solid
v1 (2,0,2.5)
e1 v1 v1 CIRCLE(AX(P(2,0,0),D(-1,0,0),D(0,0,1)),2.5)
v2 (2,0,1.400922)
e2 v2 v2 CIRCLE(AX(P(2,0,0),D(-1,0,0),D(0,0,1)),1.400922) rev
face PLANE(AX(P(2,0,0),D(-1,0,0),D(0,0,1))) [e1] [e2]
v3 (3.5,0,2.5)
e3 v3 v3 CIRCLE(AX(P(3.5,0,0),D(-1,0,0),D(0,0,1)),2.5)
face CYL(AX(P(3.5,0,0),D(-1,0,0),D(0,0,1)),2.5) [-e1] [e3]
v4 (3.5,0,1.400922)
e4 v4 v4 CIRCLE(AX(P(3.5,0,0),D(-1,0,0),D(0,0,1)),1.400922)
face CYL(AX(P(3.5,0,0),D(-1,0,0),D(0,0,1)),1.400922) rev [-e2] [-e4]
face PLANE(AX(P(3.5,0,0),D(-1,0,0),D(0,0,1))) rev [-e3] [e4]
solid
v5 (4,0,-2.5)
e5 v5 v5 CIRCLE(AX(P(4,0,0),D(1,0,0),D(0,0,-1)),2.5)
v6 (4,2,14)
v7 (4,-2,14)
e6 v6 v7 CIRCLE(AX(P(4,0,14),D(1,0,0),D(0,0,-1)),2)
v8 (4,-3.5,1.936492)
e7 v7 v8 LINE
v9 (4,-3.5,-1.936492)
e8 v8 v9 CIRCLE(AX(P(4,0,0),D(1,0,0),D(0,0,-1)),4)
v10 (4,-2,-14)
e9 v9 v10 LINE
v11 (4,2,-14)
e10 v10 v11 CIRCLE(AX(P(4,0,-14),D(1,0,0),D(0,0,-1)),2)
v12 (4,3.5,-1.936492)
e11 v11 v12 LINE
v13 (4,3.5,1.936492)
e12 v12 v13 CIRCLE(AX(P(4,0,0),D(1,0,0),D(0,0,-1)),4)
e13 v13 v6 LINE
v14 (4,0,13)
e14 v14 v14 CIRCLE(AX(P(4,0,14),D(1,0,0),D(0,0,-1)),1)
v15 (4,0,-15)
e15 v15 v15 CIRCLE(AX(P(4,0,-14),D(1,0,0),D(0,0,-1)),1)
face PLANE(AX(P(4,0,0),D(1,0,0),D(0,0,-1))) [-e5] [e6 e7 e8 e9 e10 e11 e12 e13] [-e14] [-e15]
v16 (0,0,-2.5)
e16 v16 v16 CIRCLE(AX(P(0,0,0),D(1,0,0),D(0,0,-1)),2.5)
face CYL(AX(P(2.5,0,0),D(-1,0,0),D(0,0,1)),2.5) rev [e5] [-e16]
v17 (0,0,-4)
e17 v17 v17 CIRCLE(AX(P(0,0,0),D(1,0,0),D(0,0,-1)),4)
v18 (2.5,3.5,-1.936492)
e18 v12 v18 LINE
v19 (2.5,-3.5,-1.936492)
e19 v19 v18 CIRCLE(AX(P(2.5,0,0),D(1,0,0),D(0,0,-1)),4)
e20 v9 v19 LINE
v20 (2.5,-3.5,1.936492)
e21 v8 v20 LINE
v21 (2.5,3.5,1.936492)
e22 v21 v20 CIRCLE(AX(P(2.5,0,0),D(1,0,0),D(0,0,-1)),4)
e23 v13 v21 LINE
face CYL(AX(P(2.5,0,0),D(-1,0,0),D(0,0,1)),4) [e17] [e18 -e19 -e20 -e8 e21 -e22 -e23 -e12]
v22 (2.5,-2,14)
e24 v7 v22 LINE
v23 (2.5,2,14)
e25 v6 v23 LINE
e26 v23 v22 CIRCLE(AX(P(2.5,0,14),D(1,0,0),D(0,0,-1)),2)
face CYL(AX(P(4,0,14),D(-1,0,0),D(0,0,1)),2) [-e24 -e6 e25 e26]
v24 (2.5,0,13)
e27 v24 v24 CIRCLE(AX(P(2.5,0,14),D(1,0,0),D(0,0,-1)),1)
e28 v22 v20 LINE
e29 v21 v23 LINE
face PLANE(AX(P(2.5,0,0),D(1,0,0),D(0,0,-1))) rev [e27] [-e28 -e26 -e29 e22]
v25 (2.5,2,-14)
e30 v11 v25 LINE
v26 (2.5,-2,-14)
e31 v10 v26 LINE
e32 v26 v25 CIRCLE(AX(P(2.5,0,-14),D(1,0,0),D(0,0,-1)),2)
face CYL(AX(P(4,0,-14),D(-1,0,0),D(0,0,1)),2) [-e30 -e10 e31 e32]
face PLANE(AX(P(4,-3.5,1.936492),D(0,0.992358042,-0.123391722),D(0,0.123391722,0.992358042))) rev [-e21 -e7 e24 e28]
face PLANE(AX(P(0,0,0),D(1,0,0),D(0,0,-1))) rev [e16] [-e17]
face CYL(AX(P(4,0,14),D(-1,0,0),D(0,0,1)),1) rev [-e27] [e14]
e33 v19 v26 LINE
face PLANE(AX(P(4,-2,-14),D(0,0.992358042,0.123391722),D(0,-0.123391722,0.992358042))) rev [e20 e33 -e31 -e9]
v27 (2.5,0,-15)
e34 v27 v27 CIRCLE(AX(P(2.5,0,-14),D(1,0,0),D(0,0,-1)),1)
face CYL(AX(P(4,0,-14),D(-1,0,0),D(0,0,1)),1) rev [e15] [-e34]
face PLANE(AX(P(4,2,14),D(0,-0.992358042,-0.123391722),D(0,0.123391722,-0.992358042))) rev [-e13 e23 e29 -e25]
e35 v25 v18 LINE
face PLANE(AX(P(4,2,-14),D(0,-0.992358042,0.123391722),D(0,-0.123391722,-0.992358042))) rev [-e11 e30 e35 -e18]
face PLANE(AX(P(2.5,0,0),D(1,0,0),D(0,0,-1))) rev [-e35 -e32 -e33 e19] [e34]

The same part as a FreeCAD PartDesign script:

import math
import FreeCAD as App
import Part
import Sketcher
from FreeCAD import Vector

doc = App.newDocument("Part")
body = doc.addObject("PartDesign::Body", "Body")

sketch1 = body.newObject("Sketcher::SketchObject", "Sketch")
sketch1.AttachmentSupport = (doc.getObject("YZ_Plane"), [""])
sketch1.MapMode = "FlatFace"
sketch1.addGeometry([
    Part.Circle(Vector(0, 0, 0), Vector(0, 0, 1), 4),
    Part.Circle(Vector(0, 0, 0), Vector(0, 0, 1), 2.5),
], False)
sketch1.addConstraint([
    Sketcher.Constraint("Coincident", 0, 3, -1, 1),
    Sketcher.Constraint("Coincident", 1, 3, -1, 1),
    Sketcher.Constraint("Diameter", 0, 8.0),
    Sketcher.Constraint("Diameter", 1, 5.0),
])
pad1 = body.newObject("PartDesign::Pad", "Pad")
pad1.Profile = sketch1
pad1.Length = 2.5

sketch2 = body.newObject("Sketcher::SketchObject", "Sketch001")
sketch2.AttachmentSupport = (doc.getObject("YZ_Plane"), [""])
sketch2.MapMode = "FlatFace"
sketch2.AttachmentOffset = App.Placement(Vector(0, 0, 2.5), App.Rotation())
sketch2.addGeometry([
    Part.LineSegment(Vector(-2, 14, 0), Vector(-3.5, 1.9, 0)),
    Part.ArcOfCircle(Part.Circle(Vector(0, 0, 0), Vector(0, 0, 1), 4), math.radians(151), math.radians(209)),
    Part.LineSegment(Vector(-3.5, -1.9, 0), Vector(-2, -14, 0)),
    Part.ArcOfCircle(Part.Circle(Vector(0, -14, 0), Vector(0, 0, 1), 2), math.radians(180), math.radians(360)),
    Part.LineSegment(Vector(2, -14, 0), Vector(3.5, -1.9, 0)),
    Part.ArcOfCircle(Part.Circle(Vector(0, 0, 0), Vector(0, 0, 1), 4), math.radians(-29), math.radians(29)),
    Part.LineSegment(Vector(3.5, 1.9, 0), Vector(2, 14, 0)),
    Part.ArcOfCircle(Part.Circle(Vector(0, 14, 0), Vector(0, 0, 1), 2), math.radians(0), math.radians(180)),
    Part.Circle(Vector(0, -14, 0), Vector(0, 0, 1), 1),
    Part.Circle(Vector(0, 0, 0), Vector(0, 0, 1), 2.5),
    Part.Circle(Vector(0, 14, 0), Vector(0, 0, 1), 1),
], False)
sketch2.addConstraint([
    Sketcher.Constraint("Coincident", 0, 2, 1, 1),
    Sketcher.Constraint("Coincident", 1, 2, 2, 1),
    Sketcher.Constraint("Coincident", 2, 2, 3, 1),
    Sketcher.Constraint("Coincident", 3, 2, 4, 1),
    Sketcher.Constraint("Coincident", 4, 2, 5, 1),
    Sketcher.Constraint("Coincident", 5, 2, 6, 1),
    Sketcher.Constraint("Coincident", 6, 2, 7, 1),
    Sketcher.Constraint("Coincident", 7, 2, 0, 1),
    Sketcher.Constraint("Coincident", 1, 3, -1, 1),
    Sketcher.Constraint("Coincident", 5, 3, -1, 1),
    Sketcher.Constraint("Coincident", 9, 3, -1, 1),
    Sketcher.Constraint("Coincident", 8, 3, 3, 3),
    Sketcher.Constraint("Coincident", 10, 3, 7, 3),
    Sketcher.Constraint("Equal", 1, 5),
    Sketcher.Constraint("Equal", 3, 7),
    Sketcher.Constraint("Equal", 8, 10),
    Sketcher.Constraint("Symmetric", 3, 3, 7, 3, -1, 1),
    Sketcher.Constraint("Symmetric", 2, 2, 3, 2, -2),
    Sketcher.Constraint("Parallel", 0, 4),
    Sketcher.Constraint("Parallel", 2, 6),
    Sketcher.Constraint("Horizontal", 8, 3, 2, 2),
    Sketcher.Constraint("Horizontal", 1, 2, 4, 2),
    Sketcher.Constraint("Horizontal", 0, 2, 5, 2),
    Sketcher.Constraint("Horizontal", 10, 3, 6, 2),
    Sketcher.Constraint("Diameter", 8, 2.0),
    Sketcher.Constraint("Diameter", 9, 5.0),
    Sketcher.Constraint("Radius", 1, 4.0),
    Sketcher.Constraint("Radius", 3, 2.0),
    Sketcher.Constraint("DistanceY", 3, 3, -1, 1, 14.0),
    Sketcher.Constraint("DistanceX", 1, 2, 4, 2, 7.0),
])
pad2 = body.newObject("PartDesign::Pad", "Pad001")
pad2.Profile = sketch2
pad2.Length = 1.5
body2 = doc.addObject("PartDesign::Body", "Body001")

sketch3 = body2.newObject("Sketcher::SketchObject", "Sketch002")
sketch3.AttachmentSupport = (doc.getObject("YZ_Plane001"), [""])
sketch3.MapMode = "FlatFace"
sketch3.addGeometry([
    Part.Circle(Vector(0, 0, 0), Vector(0, 0, 1), 2.5),
    Part.Circle(Vector(0, 0, 0), Vector(0, 0, 1), 1.4),
], False)
sketch3.addConstraint([
    Sketcher.Constraint("Coincident", 0, 3, -1, 1),
    Sketcher.Constraint("Coincident", 1, 3, -1, 1),
    Sketcher.Constraint("Diameter", 0, 5.0),
    Sketcher.Constraint("Diameter", 1, 2.801844),
])
pad3 = body2.newObject("PartDesign::Pad", "Pad002")
pad3.Profile = sketch3
pad3.Length = 3.5

sketch4 = body2.newObject("Sketcher::SketchObject", "Sketch003")
sketch4.AttachmentSupport = (doc.getObject("YZ_Plane001"), [""])
sketch4.MapMode = "FlatFace"
sketch4.addGeometry(Part.Circle(Vector(0, 0, 0), Vector(0, 0, 1), 2.5), False)
sketch4.addConstraint([
    Sketcher.Constraint("Coincident", 0, 3, -1, 1),
    Sketcher.Constraint("Diameter", 0, 5.0),
])
pocket1 = body2.newObject("PartDesign::Pocket", "Pocket")
pocket1.Profile = sketch4
pocket1.Length = 2
pocket1.Reversed = True

doc.recompute()
